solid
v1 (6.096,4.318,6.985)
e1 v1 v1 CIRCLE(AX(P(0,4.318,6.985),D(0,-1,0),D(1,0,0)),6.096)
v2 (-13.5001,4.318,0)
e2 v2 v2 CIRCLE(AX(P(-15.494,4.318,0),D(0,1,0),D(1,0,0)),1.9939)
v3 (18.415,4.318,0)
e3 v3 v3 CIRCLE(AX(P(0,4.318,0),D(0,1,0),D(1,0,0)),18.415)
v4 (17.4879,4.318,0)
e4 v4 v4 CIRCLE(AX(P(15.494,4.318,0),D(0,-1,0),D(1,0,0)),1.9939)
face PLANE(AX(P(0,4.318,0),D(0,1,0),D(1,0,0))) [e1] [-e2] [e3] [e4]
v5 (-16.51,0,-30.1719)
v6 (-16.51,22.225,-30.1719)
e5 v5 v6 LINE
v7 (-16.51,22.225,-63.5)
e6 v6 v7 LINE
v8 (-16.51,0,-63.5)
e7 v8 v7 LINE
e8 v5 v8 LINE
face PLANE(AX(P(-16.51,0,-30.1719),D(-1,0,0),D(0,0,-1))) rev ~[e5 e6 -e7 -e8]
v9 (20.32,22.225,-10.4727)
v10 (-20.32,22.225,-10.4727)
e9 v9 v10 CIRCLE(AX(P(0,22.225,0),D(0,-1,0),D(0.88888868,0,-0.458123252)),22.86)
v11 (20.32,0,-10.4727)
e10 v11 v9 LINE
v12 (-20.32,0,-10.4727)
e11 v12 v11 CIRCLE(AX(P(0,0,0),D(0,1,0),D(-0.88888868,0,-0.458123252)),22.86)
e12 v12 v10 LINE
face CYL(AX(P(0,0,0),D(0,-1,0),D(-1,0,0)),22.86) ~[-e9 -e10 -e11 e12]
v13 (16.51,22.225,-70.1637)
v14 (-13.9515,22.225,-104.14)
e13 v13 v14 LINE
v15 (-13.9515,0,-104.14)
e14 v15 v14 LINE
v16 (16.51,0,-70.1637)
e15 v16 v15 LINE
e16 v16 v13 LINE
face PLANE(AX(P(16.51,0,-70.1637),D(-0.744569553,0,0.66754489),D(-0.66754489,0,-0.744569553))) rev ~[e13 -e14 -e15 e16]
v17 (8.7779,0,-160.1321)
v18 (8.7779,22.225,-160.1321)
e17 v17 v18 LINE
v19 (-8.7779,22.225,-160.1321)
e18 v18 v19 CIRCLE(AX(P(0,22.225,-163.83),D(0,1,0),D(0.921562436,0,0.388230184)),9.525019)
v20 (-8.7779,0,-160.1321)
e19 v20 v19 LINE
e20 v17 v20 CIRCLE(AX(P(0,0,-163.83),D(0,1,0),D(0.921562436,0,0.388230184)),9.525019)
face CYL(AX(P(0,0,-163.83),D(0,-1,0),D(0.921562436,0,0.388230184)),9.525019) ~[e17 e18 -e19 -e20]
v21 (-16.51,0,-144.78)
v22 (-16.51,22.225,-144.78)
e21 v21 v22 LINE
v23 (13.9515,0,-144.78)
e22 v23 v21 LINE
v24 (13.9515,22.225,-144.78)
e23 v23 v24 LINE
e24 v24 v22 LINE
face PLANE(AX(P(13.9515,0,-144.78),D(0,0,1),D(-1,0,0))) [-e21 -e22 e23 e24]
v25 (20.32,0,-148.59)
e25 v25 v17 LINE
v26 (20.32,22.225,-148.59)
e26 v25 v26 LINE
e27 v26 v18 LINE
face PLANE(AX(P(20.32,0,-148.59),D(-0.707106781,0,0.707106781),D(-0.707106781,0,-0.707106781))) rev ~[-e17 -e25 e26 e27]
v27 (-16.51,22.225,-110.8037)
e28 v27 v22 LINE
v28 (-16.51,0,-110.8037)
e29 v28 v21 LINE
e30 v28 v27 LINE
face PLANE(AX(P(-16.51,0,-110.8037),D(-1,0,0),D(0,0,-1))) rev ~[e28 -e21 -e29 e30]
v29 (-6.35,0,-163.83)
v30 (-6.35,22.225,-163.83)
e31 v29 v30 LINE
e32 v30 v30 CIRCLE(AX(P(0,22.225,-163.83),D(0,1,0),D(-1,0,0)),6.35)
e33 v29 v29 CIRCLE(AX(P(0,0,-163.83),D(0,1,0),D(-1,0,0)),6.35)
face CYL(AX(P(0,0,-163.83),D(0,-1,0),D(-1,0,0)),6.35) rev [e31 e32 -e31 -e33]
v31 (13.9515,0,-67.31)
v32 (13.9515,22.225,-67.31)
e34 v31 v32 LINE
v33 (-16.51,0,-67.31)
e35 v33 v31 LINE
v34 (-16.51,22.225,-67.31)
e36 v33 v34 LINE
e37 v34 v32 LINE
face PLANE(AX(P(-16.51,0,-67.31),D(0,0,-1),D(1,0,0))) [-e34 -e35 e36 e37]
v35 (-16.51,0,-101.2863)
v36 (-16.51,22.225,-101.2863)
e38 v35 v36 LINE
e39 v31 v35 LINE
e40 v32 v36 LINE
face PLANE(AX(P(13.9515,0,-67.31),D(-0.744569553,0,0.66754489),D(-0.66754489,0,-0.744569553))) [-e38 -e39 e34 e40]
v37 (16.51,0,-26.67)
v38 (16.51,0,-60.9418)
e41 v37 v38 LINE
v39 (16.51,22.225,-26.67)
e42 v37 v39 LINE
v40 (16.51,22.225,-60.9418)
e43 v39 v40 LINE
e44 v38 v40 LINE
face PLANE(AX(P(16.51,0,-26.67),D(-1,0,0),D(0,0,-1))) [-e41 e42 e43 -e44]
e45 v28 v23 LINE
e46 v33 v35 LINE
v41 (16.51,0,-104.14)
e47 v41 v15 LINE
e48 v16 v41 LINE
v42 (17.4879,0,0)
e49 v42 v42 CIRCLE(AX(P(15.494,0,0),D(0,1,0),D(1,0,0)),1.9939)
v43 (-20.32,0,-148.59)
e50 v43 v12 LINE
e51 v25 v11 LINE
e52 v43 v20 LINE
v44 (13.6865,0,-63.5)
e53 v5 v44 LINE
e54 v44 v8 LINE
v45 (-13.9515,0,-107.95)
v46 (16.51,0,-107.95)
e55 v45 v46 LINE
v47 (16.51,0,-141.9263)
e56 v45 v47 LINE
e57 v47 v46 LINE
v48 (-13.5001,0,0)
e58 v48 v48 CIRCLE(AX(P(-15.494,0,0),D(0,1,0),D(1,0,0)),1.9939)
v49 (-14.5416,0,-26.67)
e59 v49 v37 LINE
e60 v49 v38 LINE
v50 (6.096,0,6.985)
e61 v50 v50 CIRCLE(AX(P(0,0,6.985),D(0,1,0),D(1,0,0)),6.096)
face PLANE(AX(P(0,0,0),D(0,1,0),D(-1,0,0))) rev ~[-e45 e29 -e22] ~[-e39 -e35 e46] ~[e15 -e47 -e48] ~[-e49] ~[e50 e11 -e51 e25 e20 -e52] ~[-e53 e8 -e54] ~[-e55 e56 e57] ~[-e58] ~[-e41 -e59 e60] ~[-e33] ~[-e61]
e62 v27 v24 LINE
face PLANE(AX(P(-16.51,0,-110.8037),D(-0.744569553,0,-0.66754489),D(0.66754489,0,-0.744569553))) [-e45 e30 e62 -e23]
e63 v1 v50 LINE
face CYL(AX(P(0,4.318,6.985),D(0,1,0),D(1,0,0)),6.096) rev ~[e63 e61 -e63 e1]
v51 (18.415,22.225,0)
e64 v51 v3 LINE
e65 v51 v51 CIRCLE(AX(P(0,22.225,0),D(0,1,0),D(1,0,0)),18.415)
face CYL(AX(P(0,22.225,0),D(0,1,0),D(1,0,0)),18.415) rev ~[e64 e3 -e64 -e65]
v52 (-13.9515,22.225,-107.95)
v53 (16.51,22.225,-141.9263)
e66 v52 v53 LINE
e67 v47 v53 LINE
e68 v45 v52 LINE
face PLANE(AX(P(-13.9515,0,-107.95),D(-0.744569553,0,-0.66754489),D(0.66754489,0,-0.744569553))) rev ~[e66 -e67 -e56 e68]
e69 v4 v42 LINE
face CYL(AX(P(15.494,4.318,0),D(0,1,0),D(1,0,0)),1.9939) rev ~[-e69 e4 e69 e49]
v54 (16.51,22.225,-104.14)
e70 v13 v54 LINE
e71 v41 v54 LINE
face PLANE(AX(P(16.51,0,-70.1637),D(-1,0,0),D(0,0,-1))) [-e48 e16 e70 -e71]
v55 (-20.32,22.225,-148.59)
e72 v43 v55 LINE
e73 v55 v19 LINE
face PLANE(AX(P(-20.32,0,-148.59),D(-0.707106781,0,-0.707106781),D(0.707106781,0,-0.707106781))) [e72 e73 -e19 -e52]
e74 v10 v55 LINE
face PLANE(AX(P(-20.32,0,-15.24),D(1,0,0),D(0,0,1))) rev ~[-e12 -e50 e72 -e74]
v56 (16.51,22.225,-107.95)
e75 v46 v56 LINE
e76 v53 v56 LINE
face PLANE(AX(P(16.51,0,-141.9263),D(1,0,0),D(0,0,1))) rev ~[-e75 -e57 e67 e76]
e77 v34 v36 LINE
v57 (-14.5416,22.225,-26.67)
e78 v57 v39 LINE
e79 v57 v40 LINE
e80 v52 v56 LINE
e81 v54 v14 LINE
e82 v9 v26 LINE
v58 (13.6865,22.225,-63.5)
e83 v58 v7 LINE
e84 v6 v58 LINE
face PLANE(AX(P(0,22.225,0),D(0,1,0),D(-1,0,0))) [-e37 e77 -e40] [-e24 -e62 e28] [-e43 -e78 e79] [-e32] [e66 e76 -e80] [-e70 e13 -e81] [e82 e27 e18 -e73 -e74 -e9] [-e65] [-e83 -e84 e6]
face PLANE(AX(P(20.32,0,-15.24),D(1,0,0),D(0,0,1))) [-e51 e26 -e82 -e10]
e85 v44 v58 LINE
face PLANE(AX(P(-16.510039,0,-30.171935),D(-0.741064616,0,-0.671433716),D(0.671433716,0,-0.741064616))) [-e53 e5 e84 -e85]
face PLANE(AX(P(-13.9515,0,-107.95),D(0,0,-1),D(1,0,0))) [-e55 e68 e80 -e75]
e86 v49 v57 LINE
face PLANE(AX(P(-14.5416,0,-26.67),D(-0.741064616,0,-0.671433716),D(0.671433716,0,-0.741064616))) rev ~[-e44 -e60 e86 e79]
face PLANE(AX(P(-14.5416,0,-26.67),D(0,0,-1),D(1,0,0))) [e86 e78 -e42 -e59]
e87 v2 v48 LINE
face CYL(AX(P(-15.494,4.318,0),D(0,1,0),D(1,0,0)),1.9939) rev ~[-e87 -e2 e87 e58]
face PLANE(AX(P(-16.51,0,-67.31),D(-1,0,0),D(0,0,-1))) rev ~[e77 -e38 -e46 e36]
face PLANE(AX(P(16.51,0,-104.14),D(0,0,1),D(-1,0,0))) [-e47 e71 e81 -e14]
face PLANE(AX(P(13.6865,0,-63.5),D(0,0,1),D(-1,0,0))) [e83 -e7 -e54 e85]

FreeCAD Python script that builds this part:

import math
import FreeCAD as App
import Part
import Sketcher
Q = App.Units.Quantity


def add_polygon(sketch, points):
    """Adds a closed chain of lines whose ends are joined by coincident constraints."""
    first, n = sketch.GeometryCount, len(points)
    for a, b in zip(points, points[1:] + points[:1]):
        sketch.addGeometry(Part.LineSegment(App.Vector(*a, 0), App.Vector(*b, 0)), False)
    for i in range(n):
        sketch.addConstraint(Sketcher.Constraint("Coincident", first + i, 2, first + (i + 1) % n, 1))

doc = App.newDocument("Part")
body = doc.addObject("PartDesign::Body", "Body")

# Sketch on XZ plane
sketch1 = doc.addObject("Sketcher::SketchObject", "Sketch")
body.addObject(sketch1)
sketch1.AttachmentSupport = (doc.XZ_Plane, [""])
sketch1.MapMode = "FlatFace"
sketch1.addGeometry(Part.ArcOfCircle(Part.Circle(App.Vector(0, 0, 0), App.Vector(0, 0, 1), 23), math.radians(-27), math.radians(207)), False)  # 0
sketch1.addGeometry(Part.LineSegment(App.Vector(20, -10, 0), App.Vector(20, -149, 0)), False)  # 1
sketch1.addGeometry(Part.LineSegment(App.Vector(20, -149, 0), App.Vector(9, -160, 0)), False)  # 2
sketch1.addGeometry(Part.ArcOfCircle(Part.Circle(App.Vector(0, -164, 0), App.Vector(0, 0, 1), 10), math.radians(157), math.radians(383)), False)  # 3
sketch1.addGeometry(Part.LineSegment(App.Vector(-9, -160, 0), App.Vector(-20, -149, 0)), False)  # 4
sketch1.addGeometry(Part.LineSegment(App.Vector(-20, -149, 0), App.Vector(-20, -10, 0)), False)  # 5
add_polygon(sketch1, [(17, -108), (-14, -108), (17, -142)])  # lines 6-8
add_polygon(sketch1, [(17, -104), (17, -70), (-14, -104)])  # lines 9-11
sketch1.addGeometry(Part.Circle(App.Vector(0, -164, 0), App.Vector(0, 0, 1), 6), False)  # 12
add_polygon(sketch1, [(14, -145), (-17, -111), (-17, -145)])  # lines 13-15
add_polygon(sketch1, [(14, -67), (-17, -67), (-17, -101)])  # lines 16-18
add_polygon(sketch1, [(17, -27), (-15, -27), (17, -61)])  # lines 19-21
add_polygon(sketch1, [(-17, -64), (14, -64), (-17, -30)])  # lines 22-24
sketch1.addConstraint([
    Sketcher.Constraint("Coincident", 0, 1, 1, 1),
    Sketcher.Constraint("Coincident", 1, 2, 2, 1),
    Sketcher.Constraint("Coincident", 2, 2, 3, 2),
    Sketcher.Constraint("Coincident", 3, 1, 4, 1),
    Sketcher.Constraint("Coincident", 4, 2, 5, 1),
    Sketcher.Constraint("Coincident", 5, 2, 0, 2),
    Sketcher.Constraint("Vertical", 1),
    Sketcher.Constraint("Vertical", 5),
    Sketcher.Constraint("Horizontal", 6),
    Sketcher.Constraint("Vertical", 8),
    Sketcher.Constraint("Vertical", 9),
    Sketcher.Constraint("Horizontal", 11),
    Sketcher.Constraint("Vertical", 14),
    Sketcher.Constraint("Horizontal", 15),
    Sketcher.Constraint("Horizontal", 16),
    Sketcher.Constraint("Vertical", 17),
    Sketcher.Constraint("Horizontal", 19),
    Sketcher.Constraint("Vertical", 21),
    Sketcher.Constraint("Horizontal", 22),
    Sketcher.Constraint("Vertical", 24),
    Sketcher.Constraint("Coincident", 0, 3, -1, 1),
    Sketcher.Constraint("Coincident", 12, 3, 3, 3),
    Sketcher.Constraint("Symmetric", 2, 2, 3, 1, -2),
    Sketcher.Constraint("Symmetric", 1, 2, 4, 2, -2),
    Sketcher.Constraint("Perpendicular", 2, 4),
    Sketcher.Constraint("Parallel", 7, 13),
    Sketcher.Constraint("Parallel", 10, 18),
    Sketcher.Constraint("Parallel", 20, 23),
    Sketcher.Constraint("Vertical", 8, 2, 9, 2),
    Sketcher.Constraint("Vertical", 6, 2, 10, 2),
    Sketcher.Constraint("Vertical", 14, 2, 16, 2),
    Sketcher.Constraint("Vertical", 15, 2, 18, 2),
    Sketcher.Constraint("Vertical", 11, 2, 20, 2),
    Sketcher.Constraint("Vertical", 17, 2, 23, 2),
    Sketcher.Constraint("Equal", 11, 15),
    Sketcher.Constraint("Equal", 8, 9),
    Sketcher.Constraint("Diameter", 12, Q("0.5 in")),
    Sketcher.Constraint("Radius", 0, Q("0.9 in")),
    Sketcher.Constraint("Radius", 3, Q("0.375 in")),
    Sketcher.Constraint("DistanceX", -1, 1, 0, 1, Q("0.8 in")),
    Sketcher.Constraint("DistanceY", 4, 2, 6, 2, Q("1.6 in")),
    Sketcher.Constraint("DistanceY", 6, 2, 16, 2, Q("1.6 in")),
    Sketcher.Constraint("DistanceY", 16, 2, 19, 2, Q("1.6 in")),
    Sketcher.Constraint("DistanceY", 19, 2, -1, 1, Q("1.05 in")),
    Sketcher.Constraint("DistanceX", 7, 2, 1, 2, Q("0.15 in")),
    Sketcher.Constraint("DistanceY", 6, 2, 10, 2, Q("0.15 in")),
    Sketcher.Constraint("DistanceX", 4, 2, 13, 2, Q("0.15 in")),
    Sketcher.Constraint("DistanceY", 4, 2, 14, 2, Q("0.15 in")),
    Sketcher.Constraint("DistanceY", 3, 3, 14, 2, Q("0.75 in")),
    Sketcher.Constraint("DistanceY", 18, 2, 22, 2, Q("0.15 in")),
    Sketcher.Constraint("DistanceX", 19, 2, 19, 1, Q("1.2225 in")),
    Sketcher.Constraint("Distance", 23, Q("1.7706 in")),
    Sketcher.Constraint("DistanceX", 6, 2, 6, 1, 30.4615),
    Sketcher.Constraint("DistanceX", 22, 1, 22, 2, 30.1965),
    Sketcher.Constraint("DistanceY", 8, 1, 8, 2, 33.9763),
])
pad1 = doc.addObject("PartDesign::Pad", "Pad")
body.addObject(pad1)
pad1.Profile = sketch1
pad1.Length = Q("0.875 in")
pad1.Reversed = True

# Sketch on XZ plane
sketch2 = doc.addObject("Sketcher::SketchObject", "Sketch001")
body.addObject(sketch2)
sketch2.AttachmentSupport = (doc.XZ_Plane, [""])
sketch2.MapMode = "FlatFace"
sketch2.AttachmentOffset = App.Placement(App.Vector(0, 0, -0.875 * 25.4), App.Rotation())
sketch2.addGeometry(Part.Circle(App.Vector(0, 0, 0), App.Vector(0, 0, 1), 18), False)
sketch2.addConstraint([
    Sketcher.Constraint("Coincident", 0, 3, -1, 1),
    Sketcher.Constraint("Diameter", 0, Q("1.45 in")),
])
pocket1 = doc.addObject("PartDesign::Pocket", "Pocket")
body.addObject(pocket1)
pocket1.Profile = sketch2
pocket1.Length = Q("0.705 in")
pocket1.Reversed = True

# Sketch on XZ plane
sketch3 = doc.addObject("Sketcher::SketchObject", "Sketch002")
body.addObject(sketch3)
sketch3.AttachmentSupport = (doc.XZ_Plane, [""])
sketch3.MapMode = "FlatFace"
sketch3.AttachmentOffset = App.Placement(App.Vector(0, 0, -0.17 * 25.4), App.Rotation())
sketch3.addGeometry([
    Part.Circle(App.Vector(0, 7, 0), App.Vector(0, 0, 1), 6.1),
    Part.Circle(App.Vector(-15.5, 0, 0), App.Vector(0, 0, 1), 2),
    Part.Circle(App.Vector(15.5, 0, 0), App.Vector(0, 0, 1), 2),
], False)
sketch3.addConstraint([
    Sketcher.Constraint("Equal", 1, 2),
    Sketcher.Constraint("Symmetric", 1, 3, 2, 3, -1, 1),
    Sketcher.Constraint("PointOnObject", 0, 3, -2),
    Sketcher.Constraint("PointOnObject", 1, 3, -1),
    Sketcher.Constraint("Diameter", 0, Q("0.48 in")),
    Sketcher.Constraint("Diameter", 1, Q("0.157 in")),
    Sketcher.Constraint("DistanceX", 1, 3, -1, 1, Q("0.61 in")),
    Sketcher.Constraint("DistanceY", -1, 1, 0, 3, Q("0.275 in")),
])
pocket2 = doc.addObject("PartDesign::Pocket", "Pocket001")
body.addObject(pocket2)
pocket2.Profile = sketch3
pocket2.Length = Q("1.43 in")
pocket2.Reversed = True

doc.recompute()
